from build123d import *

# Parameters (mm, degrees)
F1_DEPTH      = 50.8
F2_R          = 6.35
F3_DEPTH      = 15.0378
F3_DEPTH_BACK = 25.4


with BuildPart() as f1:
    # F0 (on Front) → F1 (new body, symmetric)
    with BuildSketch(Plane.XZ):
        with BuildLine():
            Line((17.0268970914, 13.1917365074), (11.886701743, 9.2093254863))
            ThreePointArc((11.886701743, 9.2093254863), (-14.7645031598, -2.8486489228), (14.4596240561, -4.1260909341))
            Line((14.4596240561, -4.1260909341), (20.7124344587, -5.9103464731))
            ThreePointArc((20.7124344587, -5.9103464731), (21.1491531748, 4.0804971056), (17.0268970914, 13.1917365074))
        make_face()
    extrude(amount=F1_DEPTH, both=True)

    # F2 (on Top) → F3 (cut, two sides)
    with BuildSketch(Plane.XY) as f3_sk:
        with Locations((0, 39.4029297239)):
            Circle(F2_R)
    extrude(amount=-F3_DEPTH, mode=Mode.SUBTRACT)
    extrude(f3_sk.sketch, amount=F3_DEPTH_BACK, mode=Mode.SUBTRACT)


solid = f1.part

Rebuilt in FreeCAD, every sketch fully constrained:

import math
import FreeCAD as App
import Part
import Sketcher
Q = App.Units.Quantity

doc = App.newDocument("Part")
params = doc.addObject("Spreadsheet::Sheet", "Params")
for row, (alias, value) in enumerate([
    ("sketch1_radius", "0.592 in"),
    ("sketch1_radius2", "0.848 in"),
    ("pad1_length", "4 in"),
    ("sketch2_diameter", "0.5 in"),
], start=1):
    params.set(f"A{row}", alias)
    params.set(f"B{row}", "=" + value)
    params.setAlias(f"B{row}", alias)

body = doc.addObject("PartDesign::Body", "Body")

sketch1 = body.newObject("Sketcher::SketchObject", "Sketch")
sketch1.AttachmentSupport = (doc.getObject("XZ_Plane"), [""])
sketch1.MapMode = "FlatFace"
sketch1.addGeometry([
    Part.LineSegment(App.Vector(17.026897, 13.191737, 0), App.Vector(11.886702, 9.209325, 0)),
    Part.ArcOfCircle(Part.Circle(App.Vector(0, 0, 0), App.Vector(0, 0, 1), 15.0368), math.radians(37.767045), math.radians(344.073766)),
    Part.LineSegment(App.Vector(14.459624, -4.126091, 0), App.Vector(20.712434, -5.910346, 0)),
    Part.ArcOfCircle(Part.Circle(App.Vector(0, 0, 0), App.Vector(0, 0, 1), 21.5392), math.radians(-15.926234), math.radians(37.767045)),
], False)
sketch1.addConstraint([
    Sketcher.Constraint("Coincident", 0, 2, 1, 1),
    Sketcher.Constraint("Coincident", 1, 2, 2, 1),
    Sketcher.Constraint("Coincident", 2, 2, 3, 1),
    Sketcher.Constraint("Coincident", 3, 2, 0, 1),
    Sketcher.Constraint("Coincident", 1, 3, -1, 1),
    Sketcher.Constraint("Coincident", 3, 3, -1, 1),
    Sketcher.Constraint("Radius", 1, Q("0.592 in")),
    Sketcher.Constraint("Radius", 3, Q("0.848 in")),
    Sketcher.Constraint("DistanceX", 3, 2, 2, 2, Q("0.1450999 in")),
    Sketcher.Constraint("DistanceX", -1, 1, 0, 2, Q("11.886702 mm")),
    Sketcher.Constraint("DistanceY", 1, 2, -1, 1, Q("4.126091 mm")),
    Sketcher.Constraint("DistanceX", 1, 2, 2, 2, Q("6.25281 mm")),
])
sketch1.setExpression("Constraints[6]", "Params.sketch1_radius")
sketch1.setExpression("Constraints[7]", "Params.sketch1_radius2")
pad1 = body.newObject("PartDesign::Pad", "Pad")
pad1.Profile = sketch1
pad1.setExpression("Length", "Params.pad1_length")
pad1.Midplane = True

sketch2 = body.newObject("Sketcher::SketchObject", "Sketch001")
sketch2.AttachmentSupport = (doc.getObject("XY_Plane"), [""])
sketch2.MapMode = "FlatFace"
sketch2.addGeometry(Part.Circle(App.Vector(0, 39.40293, 0), App.Vector(0, 0, 1), 6.35), False)
sketch2.addConstraint([
    Sketcher.Constraint("PointOnObject", 0, 3, -2),
    Sketcher.Constraint("Diameter", 0, Q("0.5 in")),
    Sketcher.Constraint("DistanceY", -1, 1, 0, 3, Q("39.40293 mm")),
])
sketch2.setExpression("Constraints[1]", "Params.sketch2_diameter")
pocket1 = body.newObject("PartDesign::Pocket", "Pocket")
pocket1.Profile = sketch2
pocket1.Type = "ThroughAll"
pocket1.Midplane = True

doc.recompute()
